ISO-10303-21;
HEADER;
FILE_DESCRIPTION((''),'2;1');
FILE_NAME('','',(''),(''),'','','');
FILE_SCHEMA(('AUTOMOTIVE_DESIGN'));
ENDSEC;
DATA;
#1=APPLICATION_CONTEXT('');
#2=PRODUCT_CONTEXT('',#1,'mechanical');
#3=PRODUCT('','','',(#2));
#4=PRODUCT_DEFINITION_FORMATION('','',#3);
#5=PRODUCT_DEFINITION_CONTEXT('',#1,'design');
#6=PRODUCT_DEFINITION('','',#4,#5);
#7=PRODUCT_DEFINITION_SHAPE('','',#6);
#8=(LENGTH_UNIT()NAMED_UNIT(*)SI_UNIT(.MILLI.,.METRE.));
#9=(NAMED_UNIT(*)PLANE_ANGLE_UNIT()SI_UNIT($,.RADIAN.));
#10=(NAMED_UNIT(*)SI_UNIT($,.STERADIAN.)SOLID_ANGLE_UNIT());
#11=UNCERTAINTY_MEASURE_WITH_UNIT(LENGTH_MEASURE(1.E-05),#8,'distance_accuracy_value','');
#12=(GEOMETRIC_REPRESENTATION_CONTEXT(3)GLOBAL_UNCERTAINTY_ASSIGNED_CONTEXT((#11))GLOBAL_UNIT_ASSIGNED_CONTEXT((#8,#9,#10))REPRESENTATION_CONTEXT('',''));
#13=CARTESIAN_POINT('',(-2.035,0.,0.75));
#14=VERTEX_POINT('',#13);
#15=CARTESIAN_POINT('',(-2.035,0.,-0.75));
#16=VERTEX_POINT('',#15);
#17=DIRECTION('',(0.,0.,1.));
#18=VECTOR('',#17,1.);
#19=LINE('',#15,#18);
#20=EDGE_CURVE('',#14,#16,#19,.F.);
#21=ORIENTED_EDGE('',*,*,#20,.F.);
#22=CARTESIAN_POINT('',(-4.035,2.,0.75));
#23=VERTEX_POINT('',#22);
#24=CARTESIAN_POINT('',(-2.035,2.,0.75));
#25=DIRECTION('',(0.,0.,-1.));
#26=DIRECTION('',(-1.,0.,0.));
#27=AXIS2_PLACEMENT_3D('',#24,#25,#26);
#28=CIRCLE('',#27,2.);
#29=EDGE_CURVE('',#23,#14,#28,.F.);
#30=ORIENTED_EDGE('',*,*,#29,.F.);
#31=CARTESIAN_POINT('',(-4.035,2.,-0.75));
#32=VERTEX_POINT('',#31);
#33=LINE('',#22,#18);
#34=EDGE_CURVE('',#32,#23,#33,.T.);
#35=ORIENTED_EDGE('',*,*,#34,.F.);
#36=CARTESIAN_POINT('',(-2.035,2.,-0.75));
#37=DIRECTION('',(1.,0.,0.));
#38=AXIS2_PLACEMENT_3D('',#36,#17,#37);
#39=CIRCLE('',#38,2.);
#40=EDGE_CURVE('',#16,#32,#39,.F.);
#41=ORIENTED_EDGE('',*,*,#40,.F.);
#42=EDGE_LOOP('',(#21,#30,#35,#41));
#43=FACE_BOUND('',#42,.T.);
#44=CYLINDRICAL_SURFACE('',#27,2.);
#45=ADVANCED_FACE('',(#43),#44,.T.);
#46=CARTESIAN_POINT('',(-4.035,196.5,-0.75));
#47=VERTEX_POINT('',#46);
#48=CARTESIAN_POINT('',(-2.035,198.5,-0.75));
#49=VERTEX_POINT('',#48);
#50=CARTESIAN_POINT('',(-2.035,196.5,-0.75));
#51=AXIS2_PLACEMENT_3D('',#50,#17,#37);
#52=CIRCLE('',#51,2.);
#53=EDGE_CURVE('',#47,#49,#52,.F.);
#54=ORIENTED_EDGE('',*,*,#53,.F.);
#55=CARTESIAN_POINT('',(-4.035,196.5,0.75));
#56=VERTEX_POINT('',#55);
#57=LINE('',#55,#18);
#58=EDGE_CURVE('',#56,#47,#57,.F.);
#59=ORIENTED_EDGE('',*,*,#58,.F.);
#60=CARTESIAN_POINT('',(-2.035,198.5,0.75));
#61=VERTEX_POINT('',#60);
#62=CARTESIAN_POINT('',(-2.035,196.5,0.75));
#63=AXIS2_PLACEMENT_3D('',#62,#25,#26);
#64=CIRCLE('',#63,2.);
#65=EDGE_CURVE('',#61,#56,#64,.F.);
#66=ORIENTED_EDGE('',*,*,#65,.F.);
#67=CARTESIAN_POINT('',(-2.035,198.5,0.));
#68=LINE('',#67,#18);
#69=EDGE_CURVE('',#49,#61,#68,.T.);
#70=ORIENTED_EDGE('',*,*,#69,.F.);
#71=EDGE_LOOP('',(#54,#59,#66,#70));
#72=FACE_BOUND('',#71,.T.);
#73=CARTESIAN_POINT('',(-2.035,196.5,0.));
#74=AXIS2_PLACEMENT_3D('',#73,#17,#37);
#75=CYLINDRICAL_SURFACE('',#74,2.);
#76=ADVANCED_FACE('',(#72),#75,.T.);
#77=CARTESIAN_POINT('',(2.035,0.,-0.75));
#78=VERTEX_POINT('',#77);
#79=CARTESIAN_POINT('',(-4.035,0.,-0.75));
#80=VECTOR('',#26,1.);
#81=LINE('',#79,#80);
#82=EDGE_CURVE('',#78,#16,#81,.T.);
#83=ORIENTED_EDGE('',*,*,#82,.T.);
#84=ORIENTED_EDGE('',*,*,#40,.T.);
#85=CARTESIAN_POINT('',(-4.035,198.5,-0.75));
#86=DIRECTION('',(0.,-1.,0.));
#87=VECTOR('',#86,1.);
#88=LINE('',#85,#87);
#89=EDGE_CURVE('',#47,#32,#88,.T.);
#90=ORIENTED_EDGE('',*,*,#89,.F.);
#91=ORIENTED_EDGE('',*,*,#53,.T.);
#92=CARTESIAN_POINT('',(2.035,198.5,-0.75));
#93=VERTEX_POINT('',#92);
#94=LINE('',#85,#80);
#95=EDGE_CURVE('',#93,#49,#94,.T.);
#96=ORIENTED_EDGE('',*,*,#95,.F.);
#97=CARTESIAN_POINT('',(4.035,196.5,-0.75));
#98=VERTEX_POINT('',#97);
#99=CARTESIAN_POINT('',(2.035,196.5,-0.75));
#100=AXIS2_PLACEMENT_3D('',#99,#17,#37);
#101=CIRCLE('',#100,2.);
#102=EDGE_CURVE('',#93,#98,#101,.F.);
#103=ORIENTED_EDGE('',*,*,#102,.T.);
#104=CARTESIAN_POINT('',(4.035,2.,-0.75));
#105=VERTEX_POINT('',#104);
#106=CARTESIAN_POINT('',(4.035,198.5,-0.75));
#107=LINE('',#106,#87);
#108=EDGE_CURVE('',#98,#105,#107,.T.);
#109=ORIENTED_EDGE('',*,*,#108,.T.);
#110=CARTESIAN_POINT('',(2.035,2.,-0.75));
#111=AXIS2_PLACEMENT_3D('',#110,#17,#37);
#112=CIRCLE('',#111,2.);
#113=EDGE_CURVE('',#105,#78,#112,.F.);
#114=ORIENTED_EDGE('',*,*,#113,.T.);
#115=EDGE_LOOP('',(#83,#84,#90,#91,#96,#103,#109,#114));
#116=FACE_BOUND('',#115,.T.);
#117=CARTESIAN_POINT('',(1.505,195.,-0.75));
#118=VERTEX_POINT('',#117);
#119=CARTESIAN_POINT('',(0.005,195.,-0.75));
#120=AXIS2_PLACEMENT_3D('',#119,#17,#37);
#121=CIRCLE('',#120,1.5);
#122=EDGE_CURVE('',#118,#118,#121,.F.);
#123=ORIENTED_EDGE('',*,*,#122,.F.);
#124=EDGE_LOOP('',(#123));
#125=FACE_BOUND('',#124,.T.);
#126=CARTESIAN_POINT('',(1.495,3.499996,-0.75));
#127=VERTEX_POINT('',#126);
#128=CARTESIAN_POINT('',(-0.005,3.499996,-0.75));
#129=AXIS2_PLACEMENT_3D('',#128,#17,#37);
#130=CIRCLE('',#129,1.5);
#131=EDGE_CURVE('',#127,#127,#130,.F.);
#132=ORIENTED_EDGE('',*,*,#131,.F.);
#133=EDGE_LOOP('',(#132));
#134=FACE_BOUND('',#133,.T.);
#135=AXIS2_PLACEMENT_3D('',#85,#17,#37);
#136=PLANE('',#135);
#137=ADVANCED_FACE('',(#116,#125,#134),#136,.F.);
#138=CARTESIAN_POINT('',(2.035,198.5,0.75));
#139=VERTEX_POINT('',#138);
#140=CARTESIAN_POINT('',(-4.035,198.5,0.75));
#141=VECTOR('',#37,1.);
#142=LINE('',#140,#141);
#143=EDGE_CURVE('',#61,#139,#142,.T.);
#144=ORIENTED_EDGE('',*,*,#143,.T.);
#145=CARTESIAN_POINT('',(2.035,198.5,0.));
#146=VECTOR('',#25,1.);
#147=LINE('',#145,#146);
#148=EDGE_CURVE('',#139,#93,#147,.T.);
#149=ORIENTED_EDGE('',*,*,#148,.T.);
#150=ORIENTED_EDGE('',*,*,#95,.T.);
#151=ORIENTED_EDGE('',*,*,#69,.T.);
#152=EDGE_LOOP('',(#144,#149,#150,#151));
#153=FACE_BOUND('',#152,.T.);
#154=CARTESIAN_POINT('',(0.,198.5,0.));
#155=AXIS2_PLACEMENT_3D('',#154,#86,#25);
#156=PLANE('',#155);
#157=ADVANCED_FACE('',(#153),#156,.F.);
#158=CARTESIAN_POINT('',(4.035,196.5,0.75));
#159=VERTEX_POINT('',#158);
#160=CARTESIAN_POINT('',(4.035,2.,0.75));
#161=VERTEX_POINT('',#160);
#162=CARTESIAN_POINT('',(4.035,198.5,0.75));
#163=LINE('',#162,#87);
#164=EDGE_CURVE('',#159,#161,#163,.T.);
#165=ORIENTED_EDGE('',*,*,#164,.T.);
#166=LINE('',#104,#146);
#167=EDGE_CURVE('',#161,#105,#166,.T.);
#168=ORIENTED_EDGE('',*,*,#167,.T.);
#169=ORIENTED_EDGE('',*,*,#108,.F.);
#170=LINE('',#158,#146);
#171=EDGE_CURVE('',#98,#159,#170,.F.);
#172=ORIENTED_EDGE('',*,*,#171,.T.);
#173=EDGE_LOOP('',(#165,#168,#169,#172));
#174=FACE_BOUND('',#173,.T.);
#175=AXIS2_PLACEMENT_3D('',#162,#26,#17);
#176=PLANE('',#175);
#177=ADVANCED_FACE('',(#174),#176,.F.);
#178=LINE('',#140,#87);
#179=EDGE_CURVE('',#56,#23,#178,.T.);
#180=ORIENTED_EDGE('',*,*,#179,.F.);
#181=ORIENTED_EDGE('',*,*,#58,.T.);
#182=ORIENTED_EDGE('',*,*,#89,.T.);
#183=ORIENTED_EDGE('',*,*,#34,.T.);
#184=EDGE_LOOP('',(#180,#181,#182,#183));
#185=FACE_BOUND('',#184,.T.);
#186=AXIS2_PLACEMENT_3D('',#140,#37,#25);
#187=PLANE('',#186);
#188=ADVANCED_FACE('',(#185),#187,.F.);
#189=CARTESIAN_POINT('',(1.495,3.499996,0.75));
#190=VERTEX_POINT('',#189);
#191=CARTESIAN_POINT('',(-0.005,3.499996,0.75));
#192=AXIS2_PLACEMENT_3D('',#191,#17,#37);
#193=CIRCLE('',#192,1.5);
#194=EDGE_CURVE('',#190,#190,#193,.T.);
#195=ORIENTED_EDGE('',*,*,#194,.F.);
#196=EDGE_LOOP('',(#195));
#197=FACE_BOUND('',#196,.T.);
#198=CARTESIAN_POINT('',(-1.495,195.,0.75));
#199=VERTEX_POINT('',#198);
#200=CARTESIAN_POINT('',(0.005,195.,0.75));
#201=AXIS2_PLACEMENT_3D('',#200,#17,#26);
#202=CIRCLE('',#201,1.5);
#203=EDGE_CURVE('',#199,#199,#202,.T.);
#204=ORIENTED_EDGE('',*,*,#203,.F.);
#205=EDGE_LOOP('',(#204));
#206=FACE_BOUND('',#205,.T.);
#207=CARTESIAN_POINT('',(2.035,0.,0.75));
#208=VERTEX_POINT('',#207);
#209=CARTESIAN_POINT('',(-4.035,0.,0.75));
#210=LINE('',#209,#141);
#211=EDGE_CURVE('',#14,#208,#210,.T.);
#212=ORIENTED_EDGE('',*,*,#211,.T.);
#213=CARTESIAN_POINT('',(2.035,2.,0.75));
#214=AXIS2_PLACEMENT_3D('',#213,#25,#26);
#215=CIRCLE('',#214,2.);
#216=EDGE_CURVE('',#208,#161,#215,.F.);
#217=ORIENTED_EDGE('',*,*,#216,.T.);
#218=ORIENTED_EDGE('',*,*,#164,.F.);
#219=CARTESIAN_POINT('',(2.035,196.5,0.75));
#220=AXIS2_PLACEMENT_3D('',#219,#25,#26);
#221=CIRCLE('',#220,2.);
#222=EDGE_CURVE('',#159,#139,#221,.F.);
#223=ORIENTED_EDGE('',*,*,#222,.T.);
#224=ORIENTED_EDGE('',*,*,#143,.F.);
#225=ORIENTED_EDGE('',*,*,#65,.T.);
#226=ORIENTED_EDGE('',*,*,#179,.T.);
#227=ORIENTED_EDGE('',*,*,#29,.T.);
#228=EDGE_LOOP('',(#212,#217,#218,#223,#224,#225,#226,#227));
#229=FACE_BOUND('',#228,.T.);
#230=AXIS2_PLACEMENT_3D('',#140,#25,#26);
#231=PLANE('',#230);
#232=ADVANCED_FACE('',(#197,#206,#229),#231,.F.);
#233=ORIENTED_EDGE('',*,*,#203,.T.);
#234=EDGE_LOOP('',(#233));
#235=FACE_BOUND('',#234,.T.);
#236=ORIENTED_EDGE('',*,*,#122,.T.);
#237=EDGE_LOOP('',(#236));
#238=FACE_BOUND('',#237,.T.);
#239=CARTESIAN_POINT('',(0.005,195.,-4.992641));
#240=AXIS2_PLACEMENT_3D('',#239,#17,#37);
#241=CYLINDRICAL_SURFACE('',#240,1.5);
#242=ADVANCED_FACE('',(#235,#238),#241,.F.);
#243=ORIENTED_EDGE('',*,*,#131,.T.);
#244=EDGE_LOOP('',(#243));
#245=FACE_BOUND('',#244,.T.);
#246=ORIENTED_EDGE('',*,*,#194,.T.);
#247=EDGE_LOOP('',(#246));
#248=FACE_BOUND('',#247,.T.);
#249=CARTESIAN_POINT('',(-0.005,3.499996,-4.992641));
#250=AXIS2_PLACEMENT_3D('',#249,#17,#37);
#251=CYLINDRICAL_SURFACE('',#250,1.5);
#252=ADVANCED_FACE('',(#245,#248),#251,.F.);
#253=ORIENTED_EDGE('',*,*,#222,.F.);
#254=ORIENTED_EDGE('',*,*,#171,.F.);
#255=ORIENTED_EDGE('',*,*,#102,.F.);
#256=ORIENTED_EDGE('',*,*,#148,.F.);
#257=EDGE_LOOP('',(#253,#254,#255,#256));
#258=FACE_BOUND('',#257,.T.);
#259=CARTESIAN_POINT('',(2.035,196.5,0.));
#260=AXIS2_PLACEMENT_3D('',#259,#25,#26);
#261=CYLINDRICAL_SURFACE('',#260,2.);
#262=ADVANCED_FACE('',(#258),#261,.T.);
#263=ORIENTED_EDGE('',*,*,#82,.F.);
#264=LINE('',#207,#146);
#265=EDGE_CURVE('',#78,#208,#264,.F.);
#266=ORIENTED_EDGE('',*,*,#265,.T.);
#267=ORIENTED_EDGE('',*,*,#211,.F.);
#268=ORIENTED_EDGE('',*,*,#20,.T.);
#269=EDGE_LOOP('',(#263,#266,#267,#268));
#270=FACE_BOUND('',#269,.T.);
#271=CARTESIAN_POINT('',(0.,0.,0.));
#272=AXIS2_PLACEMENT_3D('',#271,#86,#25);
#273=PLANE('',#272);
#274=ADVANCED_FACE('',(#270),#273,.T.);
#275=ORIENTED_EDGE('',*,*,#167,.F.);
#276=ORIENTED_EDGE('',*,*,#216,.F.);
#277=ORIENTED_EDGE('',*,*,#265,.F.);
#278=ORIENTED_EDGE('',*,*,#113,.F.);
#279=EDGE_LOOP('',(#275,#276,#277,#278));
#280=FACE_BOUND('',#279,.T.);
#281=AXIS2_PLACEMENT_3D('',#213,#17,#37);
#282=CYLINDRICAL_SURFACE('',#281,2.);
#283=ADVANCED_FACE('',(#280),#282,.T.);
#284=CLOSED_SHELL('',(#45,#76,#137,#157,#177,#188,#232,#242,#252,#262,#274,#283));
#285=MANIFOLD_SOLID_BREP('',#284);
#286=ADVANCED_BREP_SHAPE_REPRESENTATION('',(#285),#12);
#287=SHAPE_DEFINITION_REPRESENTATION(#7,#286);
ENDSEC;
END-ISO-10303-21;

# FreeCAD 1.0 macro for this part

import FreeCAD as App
import Part
import Sketcher

V = App.Vector


def edges_at(feature, points):
    """Names of the edges that pass closest to the given points."""
    edges = feature.Shape.Edges
    near = lambda p: min(range(len(edges)), key=lambda i: edges[i].distToShape(Part.Vertex(*p))[0])
    return sorted({f"Edge{near(p) + 1}" for p in points})


def add_polygon(sketch, points):
    """Adds a closed chain of lines whose ends are joined by coincident constraints."""
    first, n = sketch.GeometryCount, len(points)
    for a, b in zip(points, points[1:] + points[:1]):
        sketch.addGeometry(Part.LineSegment(App.Vector(*a, 0), App.Vector(*b, 0)), False)
    for i in range(n):
        sketch.addConstraint(Sketcher.Constraint("Coincident", first + i, 2, first + (i + 1) % n, 1))

doc = App.newDocument("Part")
params = doc.addObject("Spreadsheet::Sheet", "Params")
for row, (alias, value) in enumerate([
    ("sketch1_height", "1.5 mm"),
    ("sketch1_width", "8.07 mm"),
    ("pad1_length", "198.5 mm"),
    ("sketch2_diameter", "3 mm"),
    ("pocket1_length", "1.5 mm"),
    ("fillet_radius", "2 mm"),
], start=1):
    params.set(f"A{row}", alias)
    params.set(f"B{row}", "=" + value)
    params.setAlias(f"B{row}", alias)

body = doc.addObject("PartDesign::Body", "Body")

sketch1 = body.newObject("Sketcher::SketchObject", "Sketch")
sketch1.AttachmentSupport = (doc.getObject("XZ_Plane"), [""])
sketch1.MapMode = "FlatFace"
add_polygon(sketch1, [(-4, -0.8), (-4, 0.8), (4, 0.8), (4, -0.8)])
sketch1.addConstraint([
    Sketcher.Constraint("Vertical", 0),
    Sketcher.Constraint("Horizontal", 1),
    Sketcher.Constraint("Vertical", 2),
    Sketcher.Constraint("Horizontal", 3),
    Sketcher.Constraint("Symmetric", 0, 2, 2, 2, -1, 1),
    Sketcher.Constraint("DistanceY", 0, 1, 0, 2, 1.5),
    Sketcher.Constraint("DistanceX", 1, 1, 1, 2, 8.07),
])
sketch1.setExpression("Constraints[9]", "Params.sketch1_height")
sketch1.setExpression("Constraints[10]", "Params.sketch1_width")
pad1 = body.newObject("PartDesign::Pad", "Pad")
pad1.Profile = sketch1
pad1.setExpression("Length", "Params.pad1_length")
pad1.Reversed = True

sketch2 = body.newObject("Sketcher::SketchObject", "Sketch001")
sketch2.AttachmentSupport = (doc.getObject("XY_Plane"), [""])
sketch2.MapMode = "FlatFace"
sketch2.AttachmentOffset = App.Placement(V(0, 0, 0.75), App.Rotation())
sketch2.addGeometry([
    Part.Circle(V(0, 3.5, 0), V(0, 0, 1), 1.5),
    Part.Circle(V(0, 195, 0), V(0, 0, 1), 1.5),
], False)
sketch2.addConstraint([
    Sketcher.Constraint("Equal", 0, 1),
    Sketcher.Constraint("Diameter", 0, 3.0),
    Sketcher.Constraint("DistanceY", -1, 1, 1, 3, 195.0),
    Sketcher.Constraint("DistanceX", 0, 3, 1, 3, 0.01),
    Sketcher.Constraint("DistanceX", 0, 3, -1, 1, 0.005),
    Sketcher.Constraint("DistanceY", -1, 1, 0, 3, 3.499996),
])
sketch2.setExpression("Constraints[1]", "Params.sketch2_diameter")
pocket1 = body.newObject("PartDesign::Pocket", "Pocket")
pocket1.Profile = sketch2
pocket1.setExpression("Length", "Params.pocket1_length")
doc.recompute()

fillet = body.newObject("PartDesign::Fillet", "Fillet")
fillet.Base = (pocket1, edges_at(pocket1, [
    (-4.035, 198.5, 0),
    (4.035, 198.5, 0),
    (-4.035, 0, 0),
    (4.035, 0, 0),
]))
fillet.setExpression("Radius", "Params.fillet_radius")

doc.recompute()
